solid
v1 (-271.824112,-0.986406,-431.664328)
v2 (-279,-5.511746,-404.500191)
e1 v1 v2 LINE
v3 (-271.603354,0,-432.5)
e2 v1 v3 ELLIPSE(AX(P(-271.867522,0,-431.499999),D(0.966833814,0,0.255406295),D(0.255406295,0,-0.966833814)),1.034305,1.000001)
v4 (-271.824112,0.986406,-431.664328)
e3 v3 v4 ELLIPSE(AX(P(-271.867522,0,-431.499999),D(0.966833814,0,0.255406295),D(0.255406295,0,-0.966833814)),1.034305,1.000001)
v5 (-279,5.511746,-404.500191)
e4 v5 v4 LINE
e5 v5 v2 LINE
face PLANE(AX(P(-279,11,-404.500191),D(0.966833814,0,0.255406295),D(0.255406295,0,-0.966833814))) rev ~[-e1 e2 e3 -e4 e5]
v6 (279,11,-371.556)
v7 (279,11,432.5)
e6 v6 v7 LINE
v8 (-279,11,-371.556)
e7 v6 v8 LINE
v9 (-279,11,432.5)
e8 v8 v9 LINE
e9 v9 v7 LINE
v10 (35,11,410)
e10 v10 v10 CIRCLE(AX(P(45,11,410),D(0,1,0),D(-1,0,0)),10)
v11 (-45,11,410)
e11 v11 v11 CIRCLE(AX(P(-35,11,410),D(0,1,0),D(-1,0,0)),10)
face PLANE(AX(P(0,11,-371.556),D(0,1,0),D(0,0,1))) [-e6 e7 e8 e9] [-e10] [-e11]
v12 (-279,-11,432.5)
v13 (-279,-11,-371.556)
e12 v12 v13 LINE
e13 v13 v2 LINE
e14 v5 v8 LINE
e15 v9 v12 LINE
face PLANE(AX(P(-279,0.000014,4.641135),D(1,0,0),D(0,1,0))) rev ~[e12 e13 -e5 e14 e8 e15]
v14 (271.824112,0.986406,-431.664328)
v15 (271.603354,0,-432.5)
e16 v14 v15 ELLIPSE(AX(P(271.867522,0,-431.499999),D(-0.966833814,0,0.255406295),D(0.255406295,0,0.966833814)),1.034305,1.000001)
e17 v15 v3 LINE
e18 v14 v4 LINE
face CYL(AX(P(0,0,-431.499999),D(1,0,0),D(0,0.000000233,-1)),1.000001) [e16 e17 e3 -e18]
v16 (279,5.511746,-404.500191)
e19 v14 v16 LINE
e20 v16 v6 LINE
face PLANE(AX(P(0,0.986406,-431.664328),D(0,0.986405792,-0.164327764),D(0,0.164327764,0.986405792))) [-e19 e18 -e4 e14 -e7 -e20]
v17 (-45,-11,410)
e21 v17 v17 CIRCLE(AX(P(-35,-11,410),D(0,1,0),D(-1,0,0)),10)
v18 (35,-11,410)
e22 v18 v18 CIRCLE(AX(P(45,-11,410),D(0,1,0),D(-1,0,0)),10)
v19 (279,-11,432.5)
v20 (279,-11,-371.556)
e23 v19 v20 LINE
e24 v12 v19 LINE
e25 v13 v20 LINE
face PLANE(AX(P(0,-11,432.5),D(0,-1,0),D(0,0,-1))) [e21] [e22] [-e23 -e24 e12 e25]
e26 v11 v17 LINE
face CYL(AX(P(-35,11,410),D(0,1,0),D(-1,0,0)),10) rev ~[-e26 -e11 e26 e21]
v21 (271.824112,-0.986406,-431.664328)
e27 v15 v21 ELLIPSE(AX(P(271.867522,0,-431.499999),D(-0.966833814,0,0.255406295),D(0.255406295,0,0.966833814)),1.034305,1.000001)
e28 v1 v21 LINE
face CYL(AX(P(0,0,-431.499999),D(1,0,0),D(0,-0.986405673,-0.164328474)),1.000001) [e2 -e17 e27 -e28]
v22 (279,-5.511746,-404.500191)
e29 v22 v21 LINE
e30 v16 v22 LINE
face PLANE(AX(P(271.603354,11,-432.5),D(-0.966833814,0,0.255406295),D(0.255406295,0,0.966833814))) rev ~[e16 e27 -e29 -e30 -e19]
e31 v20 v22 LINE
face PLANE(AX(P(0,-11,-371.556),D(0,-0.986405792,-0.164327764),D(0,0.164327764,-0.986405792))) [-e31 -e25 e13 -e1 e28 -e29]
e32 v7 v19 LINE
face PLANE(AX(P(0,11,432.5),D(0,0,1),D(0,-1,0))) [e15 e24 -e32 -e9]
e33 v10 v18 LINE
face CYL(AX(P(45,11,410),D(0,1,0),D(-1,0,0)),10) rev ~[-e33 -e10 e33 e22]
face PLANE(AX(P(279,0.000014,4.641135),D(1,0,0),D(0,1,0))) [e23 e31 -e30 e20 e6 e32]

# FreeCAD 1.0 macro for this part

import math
import FreeCAD as App
import Part
import Sketcher

doc = App.newDocument("Part")
body = doc.addObject("PartDesign::Body", "Body")

# Sketch on YZ plane
sketch1 = doc.addObject("Sketcher::SketchObject", "Sketch")
body.addObject(sketch1)
sketch1.AttachmentSupport = (doc.YZ_Plane, [""])
sketch1.MapMode = "FlatFace"
sketch1.addGeometry(Part.LineSegment(App.Vector(11, -371.6, 0), App.Vector(11, 432.5, 0)), False)
sketch1.addGeometry(Part.LineSegment(App.Vector(11, 432.5, 0), App.Vector(-11, 432.5, 0)), False)
sketch1.addGeometry(Part.LineSegment(App.Vector(-11, 432.5, 0), App.Vector(-11, -371.6, 0)), False)
sketch1.addGeometry(Part.LineSegment(App.Vector(-11, -371.6, 0), App.Vector(-1, -431.7, 0)), False)
sketch1.addGeometry(Part.ArcOfCircle(Part.Circle(App.Vector(0, -431.5, 0), App.Vector(0, 0, 1), 1), math.radians(-171), math.radians(-90)), False)
sketch1.addGeometry(Part.ArcOfCircle(Part.Circle(App.Vector(0, -431.5, 0), App.Vector(0, 0, 1), 1), math.radians(-90), math.radians(-9)), False)
sketch1.addGeometry(Part.LineSegment(App.Vector(1, -431.7, 0), App.Vector(11, -371.6, 0)), False)
sketch1.addConstraint(Sketcher.Constraint("Coincident", 0, 2, 1, 1))
sketch1.addConstraint(Sketcher.Constraint("Coincident", 1, 2, 2, 1))
sketch1.addConstraint(Sketcher.Constraint("Coincident", 2, 2, 3, 1))
sketch1.addConstraint(Sketcher.Constraint("Tangent", 3, 2, 4, 1))
sketch1.addConstraint(Sketcher.Constraint("Tangent", 4, 2, 5, 1))
sketch1.addConstraint(Sketcher.Constraint("Tangent", 5, 2, 6, 1))
sketch1.addConstraint(Sketcher.Constraint("Coincident", 6, 2, 0, 1))
sketch1.addConstraint(Sketcher.Constraint("Vertical", 0))
sketch1.addConstraint(Sketcher.Constraint("Horizontal", 1))
sketch1.addConstraint(Sketcher.Constraint("Vertical", 2))
sketch1.addConstraint(Sketcher.Constraint("Equal", 4, 5))
sketch1.addConstraint(Sketcher.Constraint("Symmetric", 3, 2, 5, 2, -2))
sketch1.addConstraint(Sketcher.Constraint("PointOnObject", 4, 2, -2))
sketch1.addConstraint(Sketcher.Constraint("Horizontal", 2, 2, 6, 2))
sketch1.addConstraint(Sketcher.Constraint("Radius", 4, 1.000001))
sketch1.addConstraint(Sketcher.Constraint("DistanceX", 1, 2, 1, 1, 22.0))
sketch1.addConstraint(Sketcher.Constraint("DistanceY", 4, 3, 0, 2, 863.999999))
sketch1.addConstraint(Sketcher.Constraint("DistanceY", 4, 3, -1, 1, 431.499999))
sketch1.addConstraint(Sketcher.Constraint("DistanceY", 0, 1, 0, 2, 804.056))
pad1 = doc.addObject("PartDesign::Pad", "Pad")
body.addObject(pad1)
pad1.Profile = sketch1
pad1.Length = 558
pad1.Midplane = True

# Sketch on XZ plane
sketch2 = doc.addObject("Sketcher::SketchObject", "Sketch001")
body.addObject(sketch2)
sketch2.AttachmentSupport = (doc.XZ_Plane, [""])
sketch2.MapMode = "FlatFace"
sketch2.AttachmentOffset = App.Placement(App.Vector(0, 0, -11), App.Rotation())
sketch2.addGeometry(Part.Circle(App.Vector(45, 410, 0), App.Vector(0, 0, 1), 10), False)
sketch2.addGeometry(Part.Circle(App.Vector(-35, 410, 0), App.Vector(0, 0, 1), 10), False)
sketch2.addGeometry(Part.LineSegment(App.Vector(272, -432, 0), App.Vector(279, -405, 0)), False)
sketch2.addGeometry(Part.LineSegment(App.Vector(279, -405, 0), App.Vector(279, -432, 0)), False)
sketch2.addGeometry(Part.LineSegment(App.Vector(279, -432, 0), App.Vector(272, -432, 0)), False)
sketch2.addGeometry(Part.LineSegment(App.Vector(-279, -432, 0), App.Vector(-279, -405, 0)), False)
sketch2.addGeometry(Part.LineSegment(App.Vector(-279, -405, 0), App.Vector(-272, -432, 0)), False)
sketch2.addGeometry(Part.LineSegment(App.Vector(-272, -432, 0), App.Vector(-279, -432, 0)), False)
sketch2.addConstraint(Sketcher.Constraint("Coincident", 2, 2, 3, 1))
sketch2.addConstraint(Sketcher.Constraint("Coincident", 3, 2, 4, 1))
sketch2.addConstraint(Sketcher.Constraint("Coincident", 4, 2, 2, 1))
sketch2.addConstraint(Sketcher.Constraint("Coincident", 5, 2, 6, 1))
sketch2.addConstraint(Sketcher.Constraint("Coincident", 6, 2, 7, 1))
sketch2.addConstraint(Sketcher.Constraint("Coincident", 7, 2, 5, 1))
sketch2.addConstraint(Sketcher.Constraint("Horizontal", 4))
sketch2.addConstraint(Sketcher.Constraint("Horizontal", 7))
sketch2.addConstraint(Sketcher.Constraint("Equal", 0, 1))
sketch2.addConstraint(Sketcher.Constraint("Symmetric", 2, 2, 5, 2, -2))
sketch2.addConstraint(Sketcher.Constraint("Symmetric", 4, 2, 6, 2, -2))
sketch2.addConstraint(Sketcher.Constraint("Horizontal", 0, 3, 1, 3))
sketch2.addConstraint(Sketcher.Constraint("Equal", 4, 7))
sketch2.addConstraint(Sketcher.Constraint("Diameter", 0, 20.0))
sketch2.addConstraint(Sketcher.Constraint("Distance", 3, 28.0))
sketch2.addConstraint(Sketcher.Constraint("DistanceX", 4, 2, 4, 1, 7.5))
sketch2.addConstraint(Sketcher.Constraint("DistanceX", -1, 1, 0, 3, 45.0))
sketch2.addConstraint(Sketcher.Constraint("DistanceY", -1, 1, 0, 3, 410.0))
sketch2.addConstraint(Sketcher.Constraint("DistanceX", 1, 3, -1, 1, 35.0))
sketch2.addConstraint(Sketcher.Constraint("DistanceX", -1, 1, 2, 2, 279.0))
sketch2.addConstraint(Sketcher.Constraint("DistanceY", 3, 2, -1, 1, 432.5))
sketch2.addConstraint(Sketcher.Constraint("DistanceX", 6, 2, 4, 2, 543.206708))
pocket1 = doc.addObject("PartDesign::Pocket", "Pocket")
body.addObject(pocket1)
pocket1.Profile = sketch2
pocket1.Length = 25
pocket1.Reversed = True

doc.recompute()
